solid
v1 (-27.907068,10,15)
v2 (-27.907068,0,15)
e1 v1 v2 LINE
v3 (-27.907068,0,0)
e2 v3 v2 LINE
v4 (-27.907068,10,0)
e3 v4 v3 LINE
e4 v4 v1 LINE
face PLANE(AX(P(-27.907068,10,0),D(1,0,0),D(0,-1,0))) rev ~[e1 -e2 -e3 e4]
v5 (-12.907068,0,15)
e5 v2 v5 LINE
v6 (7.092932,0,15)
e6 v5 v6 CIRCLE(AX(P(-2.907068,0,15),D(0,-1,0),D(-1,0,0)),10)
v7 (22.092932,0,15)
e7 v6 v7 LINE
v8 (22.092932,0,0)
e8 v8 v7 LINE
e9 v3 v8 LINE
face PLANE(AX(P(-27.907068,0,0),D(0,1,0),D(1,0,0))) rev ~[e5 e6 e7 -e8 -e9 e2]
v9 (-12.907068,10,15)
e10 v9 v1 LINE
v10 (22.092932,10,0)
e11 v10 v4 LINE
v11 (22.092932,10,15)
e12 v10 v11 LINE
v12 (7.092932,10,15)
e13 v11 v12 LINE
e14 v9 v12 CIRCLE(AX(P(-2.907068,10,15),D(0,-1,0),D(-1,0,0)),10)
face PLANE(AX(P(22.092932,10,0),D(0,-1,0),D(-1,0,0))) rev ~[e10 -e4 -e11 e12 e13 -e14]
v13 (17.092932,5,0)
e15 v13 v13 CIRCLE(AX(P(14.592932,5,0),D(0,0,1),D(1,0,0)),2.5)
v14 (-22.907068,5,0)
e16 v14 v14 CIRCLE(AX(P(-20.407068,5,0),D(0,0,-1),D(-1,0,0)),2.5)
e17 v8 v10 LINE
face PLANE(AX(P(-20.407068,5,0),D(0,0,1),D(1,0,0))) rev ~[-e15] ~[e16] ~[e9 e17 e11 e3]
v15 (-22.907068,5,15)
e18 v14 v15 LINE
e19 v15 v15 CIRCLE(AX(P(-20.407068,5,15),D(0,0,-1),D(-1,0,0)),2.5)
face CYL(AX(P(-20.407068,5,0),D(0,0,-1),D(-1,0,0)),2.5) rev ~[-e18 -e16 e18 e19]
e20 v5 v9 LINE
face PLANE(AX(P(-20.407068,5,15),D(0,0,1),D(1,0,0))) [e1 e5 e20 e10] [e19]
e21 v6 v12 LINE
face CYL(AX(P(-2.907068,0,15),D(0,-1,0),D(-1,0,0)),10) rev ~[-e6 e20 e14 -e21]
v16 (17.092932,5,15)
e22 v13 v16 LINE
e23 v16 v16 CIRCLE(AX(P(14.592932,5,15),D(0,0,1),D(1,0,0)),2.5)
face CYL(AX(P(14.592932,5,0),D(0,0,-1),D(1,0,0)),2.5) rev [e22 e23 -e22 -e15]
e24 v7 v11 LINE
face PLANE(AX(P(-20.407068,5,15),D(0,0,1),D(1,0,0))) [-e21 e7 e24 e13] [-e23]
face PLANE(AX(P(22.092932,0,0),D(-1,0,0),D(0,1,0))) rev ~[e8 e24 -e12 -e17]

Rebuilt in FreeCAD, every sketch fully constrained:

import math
import FreeCAD as App
import Part
import Sketcher
Q = App.Units.Quantity

doc = App.newDocument("Part")
body = doc.addObject("PartDesign::Body", "Body")

# Sketch on XY plane
sketch1 = body.newObject("Sketcher::SketchObject", "Sketch")
sketch1.AttachmentSupport = (doc.getObject("XY_Plane"), [""])
sketch1.MapMode = "FlatFace"
sketch1.addGeometry(Part.LineSegment(App.Vector(22.1, 10, 0), App.Vector(-27.9, 10, 0)), False)
sketch1.addGeometry(Part.LineSegment(App.Vector(-27.9, 10, 0), App.Vector(-27.9, 0, 0)), False)
sketch1.addGeometry(Part.LineSegment(App.Vector(-27.9, 0, 0), App.Vector(22.1, 0, 0)), False)
sketch1.addGeometry(Part.LineSegment(App.Vector(22.1, 0, 0), App.Vector(22.1, 10, 0)), False)
sketch1.addGeometry(Part.Circle(App.Vector(-20.4, 5, 0), App.Vector(0, 0, 1), 2.5), False)
sketch1.addGeometry(Part.Circle(App.Vector(14.6, 5, 0), App.Vector(0, 0, 1), 2.5), False)
sketch1.addConstraint(Sketcher.Constraint("Coincident", 0, 2, 1, 1))
sketch1.addConstraint(Sketcher.Constraint("Coincident", 1, 2, 2, 1))
sketch1.addConstraint(Sketcher.Constraint("Coincident", 2, 2, 3, 1))
sketch1.addConstraint(Sketcher.Constraint("Coincident", 3, 2, 0, 1))
sketch1.addConstraint(Sketcher.Constraint("Horizontal", 0))
sketch1.addConstraint(Sketcher.Constraint("Vertical", 1))
sketch1.addConstraint(Sketcher.Constraint("Horizontal", 2))
sketch1.addConstraint(Sketcher.Constraint("Vertical", 3))
sketch1.addConstraint(Sketcher.Constraint("Equal", 4, 5))
sketch1.addConstraint(Sketcher.Constraint("PointOnObject", 1, 2, -1))
sketch1.addConstraint(Sketcher.Constraint("Horizontal", 4, 3, 5, 3))
sketch1.addConstraint(Sketcher.Constraint("Diameter", 4, Q("5 mm")))
sketch1.addConstraint(Sketcher.Constraint("DistanceX", 0, 2, 0, 1, Q("50 mm")))
sketch1.addConstraint(Sketcher.Constraint("DistanceY", 1, 2, 1, 1, Q("10 mm")))
sketch1.addConstraint(Sketcher.Constraint("DistanceY", -1, 1, 4, 3, Q("5 mm")))
sketch1.addConstraint(Sketcher.Constraint("DistanceX", 4, 3, 5, 3, Q("35 mm")))
sketch1.addConstraint(Sketcher.Constraint("DistanceX", 0, 2, 4, 3, Q("7.5 mm")))
sketch1.addConstraint(Sketcher.Constraint("DistanceX", -1, 1, 5, 3, Q("14.592932 mm")))
pad1 = body.newObject("PartDesign::Pad", "Pad")
pad1.Profile = sketch1
pad1.Length = 15

# Sketch on XZ plane
sketch2 = body.newObject("Sketcher::SketchObject", "Sketch001")
sketch2.AttachmentSupport = (doc.getObject("XZ_Plane"), [""])
sketch2.MapMode = "FlatFace"
sketch2.addGeometry(Part.LineSegment(App.Vector(7, 15, 0), App.Vector(-13, 15, 0)), False)
sketch2.addGeometry(Part.ArcOfCircle(Part.Circle(App.Vector(-3, 15, 0), App.Vector(0, 0, 1), 10), math.radians(180), math.radians(360)), False)
sketch2.addConstraint(Sketcher.Constraint("Coincident", 0, 1, 1, 2))
sketch2.addConstraint(Sketcher.Constraint("Coincident", 1, 1, 0, 2))
sketch2.addConstraint(Sketcher.Constraint("Horizontal", 0))
sketch2.addConstraint(Sketcher.Constraint("Horizontal", 1, 3, 0, 1))
sketch2.addConstraint(Sketcher.Constraint("Radius", 1, Q("10 mm")))
sketch2.addConstraint(Sketcher.Constraint("DistanceY", -1, 1, 1, 3, Q("15 mm")))
sketch2.addConstraint(Sketcher.Constraint("DistanceX", 1, 3, -1, 1, Q("2.907068 mm")))
pocket1 = body.newObject("PartDesign::Pocket", "Pocket")
pocket1.Profile = sketch2
pocket1.Length = 10

doc.recompute()
